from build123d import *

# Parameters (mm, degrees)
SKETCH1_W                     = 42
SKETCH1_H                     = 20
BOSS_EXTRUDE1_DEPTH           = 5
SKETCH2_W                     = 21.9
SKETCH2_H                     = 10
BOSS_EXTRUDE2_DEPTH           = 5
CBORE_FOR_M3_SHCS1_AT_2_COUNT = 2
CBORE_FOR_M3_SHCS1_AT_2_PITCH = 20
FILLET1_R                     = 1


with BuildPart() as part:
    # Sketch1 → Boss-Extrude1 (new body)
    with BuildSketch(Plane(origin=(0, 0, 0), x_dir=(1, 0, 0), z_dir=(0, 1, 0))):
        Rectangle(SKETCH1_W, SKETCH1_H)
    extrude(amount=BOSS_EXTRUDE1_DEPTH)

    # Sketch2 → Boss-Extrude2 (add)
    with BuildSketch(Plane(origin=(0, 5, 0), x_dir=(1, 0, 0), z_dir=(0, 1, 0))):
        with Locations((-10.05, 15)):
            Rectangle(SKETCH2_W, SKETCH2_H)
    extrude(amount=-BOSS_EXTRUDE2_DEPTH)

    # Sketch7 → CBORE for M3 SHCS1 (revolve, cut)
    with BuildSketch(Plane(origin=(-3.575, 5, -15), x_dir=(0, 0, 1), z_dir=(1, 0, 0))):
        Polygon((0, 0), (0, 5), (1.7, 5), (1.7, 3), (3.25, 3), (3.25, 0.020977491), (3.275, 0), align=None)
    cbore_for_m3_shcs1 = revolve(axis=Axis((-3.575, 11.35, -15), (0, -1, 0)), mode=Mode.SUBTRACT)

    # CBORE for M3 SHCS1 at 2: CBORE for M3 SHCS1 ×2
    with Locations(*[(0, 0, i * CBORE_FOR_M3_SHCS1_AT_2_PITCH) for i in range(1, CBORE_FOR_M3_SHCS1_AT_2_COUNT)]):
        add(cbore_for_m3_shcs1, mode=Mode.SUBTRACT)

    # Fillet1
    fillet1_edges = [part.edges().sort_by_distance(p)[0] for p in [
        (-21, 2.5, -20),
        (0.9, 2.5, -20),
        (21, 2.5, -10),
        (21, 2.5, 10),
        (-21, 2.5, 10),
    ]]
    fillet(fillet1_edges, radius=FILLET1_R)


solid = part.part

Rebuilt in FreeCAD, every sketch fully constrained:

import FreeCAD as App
import Part
import Sketcher
from FreeCAD import Vector
Q = App.Units.Quantity


def edges_at(feature, points):
    """Names of the edges that pass closest to the given points."""
    edges = feature.Shape.Edges
    near = lambda p: min(range(len(edges)), key=lambda i: edges[i].distToShape(Part.Vertex(*p))[0])
    return sorted({f"Edge{near(p) + 1}" for p in points})


def add_polygon(sketch, points):
    """Adds a closed chain of lines whose ends are joined by coincident constraints."""
    first, n = sketch.GeometryCount, len(points)
    for a, b in zip(points, points[1:] + points[:1]):
        sketch.addGeometry(Part.LineSegment(App.Vector(*a, 0), App.Vector(*b, 0)), False)
    for i in range(n):
        sketch.addConstraint(Sketcher.Constraint("Coincident", first + i, 2, first + (i + 1) % n, 1))

doc = App.newDocument("Part")
body = doc.addObject("PartDesign::Body", "Body")

# Sketch on XZ plane
sketch1 = doc.addObject("Sketcher::SketchObject", "Sketch")
body.addObject(sketch1)
sketch1.AttachmentSupport = (doc.XZ_Plane, [""])
sketch1.MapMode = "FlatFace"
add_polygon(sketch1, [(-21, -10), (-21, 10), (21, 10), (21, -10)])  # lines 0-3
sketch1.addConstraint(Sketcher.Constraint("Vertical", 0))
sketch1.addConstraint(Sketcher.Constraint("Horizontal", 1))
sketch1.addConstraint(Sketcher.Constraint("Vertical", 2))
sketch1.addConstraint(Sketcher.Constraint("Horizontal", 3))
sketch1.addConstraint(Sketcher.Constraint("Symmetric", 0, 2, 2, 2, -1, 1))
sketch1.addConstraint(Sketcher.Constraint("DistanceX", 1, 1, 1, 2, Q("42 mm")))
sketch1.addConstraint(Sketcher.Constraint("DistanceY", 0, 1, 0, 2, Q("20 mm")))
pad1 = doc.addObject("PartDesign::Pad", "Pad")
body.addObject(pad1)
pad1.Profile = sketch1
pad1.Length = 5
pad1.Reversed = True

# Sketch on XZ plane
sketch2 = doc.addObject("Sketcher::SketchObject", "Sketch001")
body.addObject(sketch2)
sketch2.AttachmentSupport = (doc.XZ_Plane, [""])
sketch2.MapMode = "FlatFace"
sketch2.AttachmentOffset = App.Placement(Vector(0, 0, -5), App.Rotation())
add_polygon(sketch2, [(-21, -20), (-21, -10), (1, -10), (1, -20)])  # lines 0-3
sketch2.addConstraint(Sketcher.Constraint("Vertical", 0))
sketch2.addConstraint(Sketcher.Constraint("Horizontal", 1))
sketch2.addConstraint(Sketcher.Constraint("Vertical", 2))
sketch2.addConstraint(Sketcher.Constraint("Horizontal", 3))
sketch2.addConstraint(Sketcher.Constraint("DistanceY", 0, 1, 0, 2, Q("10 mm")))
sketch2.addConstraint(Sketcher.Constraint("DistanceX", 1, 1, 1, 2, Q("21.9 mm")))
sketch2.addConstraint(Sketcher.Constraint("DistanceX", 0, 2, -1, 1, Q("21 mm")))
sketch2.addConstraint(Sketcher.Constraint("DistanceY", 0, 2, -1, 1, Q("10 mm")))
pad2 = doc.addObject("PartDesign::Pad", "Pad001")
body.addObject(pad2)
pad2.Profile = sketch2
pad2.Length = 5

# Sketch on YZ plane
sketch3 = doc.addObject("Sketcher::SketchObject", "Sketch002")
body.addObject(sketch3)
sketch3.AttachmentSupport = (doc.YZ_Plane, [""])
sketch3.MapMode = "FlatFace"
sketch3.AttachmentOffset = App.Placement(Vector(0, 0, -3.575), App.Rotation())
add_polygon(sketch3, [(0, -15), (5, -15), (5, -11.725), (4.979, -11.75), (2, -11.75), (2, -13.3), (0, -13.3)])  # lines 0-6
sketch3.addGeometry(Part.LineSegment(Vector(5, -15, 0), Vector(0, -15, 0)), True)  # axis
sketch3.addConstraint(Sketcher.Constraint("Horizontal", 0))
sketch3.addConstraint(Sketcher.Constraint("Vertical", 1))
sketch3.addConstraint(Sketcher.Constraint("Horizontal", 3))
sketch3.addConstraint(Sketcher.Constraint("Vertical", 4))
sketch3.addConstraint(Sketcher.Constraint("Horizontal", 5))
sketch3.addConstraint(Sketcher.Constraint("Vertical", 6))
sketch3.addConstraint(Sketcher.Constraint("Horizontal", 7))
sketch3.addConstraint(Sketcher.Constraint("Coincident", 7, 1, 0, 2))
sketch3.addConstraint(Sketcher.Constraint("PointOnObject", 5, 2, -2))
sketch3.addConstraint(Sketcher.Constraint("PointOnObject", 7, 2, -2))
sketch3.addConstraint(Sketcher.Constraint("DistanceX", 0, 1, 0, 2, Q("5 mm")))
sketch3.addConstraint(Sketcher.Constraint("DistanceX", 5, 2, 5, 1, Q("2 mm")))
sketch3.addConstraint(Sketcher.Constraint("Angle", 2, Q("-130 deg")))
sketch3.addConstraint(Sketcher.Constraint("DistanceY", 6, 2, 6, 1, Q("1.7 mm")))
sketch3.addConstraint(Sketcher.Constraint("DistanceY", 0, 2, -1, 1, Q("15 mm")))
sketch3.addConstraint(Sketcher.Constraint("DistanceY", 4, 2, 4, 1, Q("1.55 mm")))
sketch3.addConstraint(Sketcher.Constraint("DistanceY", 1, 1, 1, 2, Q("3.275 mm")))
groove = doc.addObject("PartDesign::Groove", "Groove")
body.addObject(groove)
groove.Profile = sketch3
groove.ReferenceAxis = (sketch3, ["Axis0"])
groove.Angle = 360
doc.recompute()

linearpattern = doc.addObject("PartDesign::LinearPattern", "LinearPattern")
body.addObject(linearpattern)
linearpattern.Originals = [groove]
linearpattern.Direction = (doc.Z_Axis, [""])
linearpattern.Mode = "offset"
linearpattern.Offset = 20
linearpattern.Occurrences = 2
body.Tip = linearpattern
doc.recompute()

fillet = doc.addObject("PartDesign::Fillet", "Fillet")
body.addObject(fillet)
fillet.Base = (linearpattern, edges_at(linearpattern, [
    (-21, 2.5, -20),
    (0.9, 2.5, -20),
    (21, 2.5, -10),
    (21, 2.5, 10),
    (-21, 2.5, 10),
]))
fillet.Radius = 1

doc.recompute()
